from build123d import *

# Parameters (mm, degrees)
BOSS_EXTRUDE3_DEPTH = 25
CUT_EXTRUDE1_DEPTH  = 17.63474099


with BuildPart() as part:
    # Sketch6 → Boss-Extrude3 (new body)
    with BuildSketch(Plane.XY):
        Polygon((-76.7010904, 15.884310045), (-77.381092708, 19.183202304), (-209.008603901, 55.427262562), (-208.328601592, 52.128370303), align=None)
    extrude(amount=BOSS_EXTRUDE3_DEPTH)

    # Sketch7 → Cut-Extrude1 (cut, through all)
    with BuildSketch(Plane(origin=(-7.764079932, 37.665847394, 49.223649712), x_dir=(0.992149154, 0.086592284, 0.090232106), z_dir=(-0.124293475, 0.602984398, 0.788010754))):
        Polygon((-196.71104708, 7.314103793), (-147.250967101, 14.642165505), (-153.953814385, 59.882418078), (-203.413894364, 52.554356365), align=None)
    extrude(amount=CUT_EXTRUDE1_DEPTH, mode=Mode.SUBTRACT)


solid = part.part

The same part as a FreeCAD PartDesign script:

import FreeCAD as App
import Part
import Sketcher
from FreeCAD import Vector


def add_polygon(sketch, points):
    """Adds a closed chain of lines whose ends are joined by coincident constraints."""
    first, n = sketch.GeometryCount, len(points)
    for a, b in zip(points, points[1:] + points[:1]):
        sketch.addGeometry(Part.LineSegment(App.Vector(*a, 0), App.Vector(*b, 0)), False)
    for i in range(n):
        sketch.addConstraint(Sketcher.Constraint("Coincident", first + i, 2, first + (i + 1) % n, 1))

doc = App.newDocument("Part")
body = doc.addObject("PartDesign::Body", "Body")

# Sketch on XY plane
sketch1 = body.newObject("Sketcher::SketchObject", "Sketch")
sketch1.AttachmentSupport = (doc.getObject("XY_Plane"), [""])
sketch1.MapMode = "FlatFace"
add_polygon(sketch1, [(-76.70109, 15.88431), (-77.381093, 19.183202), (-209.008604, 55.427263), (-208.328602, 52.12837)])  # lines 0-3
sketch1.addConstraint([
    Sketcher.Constraint("Parallel", 0, 2),
    Sketcher.Constraint("Parallel", 1, 3),
    Sketcher.Constraint("DistanceX", 2, 2, -1, 1, 208.328602),
    Sketcher.Constraint("Distance", 1, 136.526311),
    Sketcher.Constraint("DistanceY", -1, 1, 2, 2, 52.12837),
    Sketcher.Constraint("DistanceX", 3, 2, -1, 1, 76.70109),
    Sketcher.Constraint("DistanceX", 2, 2, 0, 2, 130.947509),
    Sketcher.Constraint("Distance", 0, 3.368248),
])
pad1 = body.newObject("PartDesign::Pad", "Pad")
pad1.Profile = sketch1
pad1.Length = 25

# Sketch on an angled plane
sketch2 = body.newObject("Sketcher::SketchObject", "Sketch001")
sketch2.Placement = App.Placement(Vector(-7.76408, 37.665847, 49.22365), App.Rotation(Vector(0.992149154, 0.086592284, 0.090232106), Vector(-0.013827099, 0.793039465, -0.609013316), Vector(-0.124293475, 0.602984398, 0.788010754), "ZXY"))
add_polygon(sketch2, [(-196.711047, 7.314104), (-147.250967, 14.642166), (-153.953814, 59.882418), (-203.413894, 52.554356)])  # lines 0-3
sketch2.addConstraint([
    Sketcher.Constraint("Perpendicular", 0, 1),
    Sketcher.Constraint("Perpendicular", 1, 2),
    Sketcher.Constraint("Perpendicular", 2, 3),
    Sketcher.Constraint("Distance", 0, 50.0),
    Sketcher.Constraint("DistanceY", -1, 1, 1, 2, 59.882418),
    Sketcher.Constraint("DistanceX", 2, 2, 1, 2, 49.46008),
    Sketcher.Constraint("DistanceY", 0, 2, 2, 2, 37.912191),
    Sketcher.Constraint("DistanceX", 0, 2, -1, 1, 147.250967),
])
pocket1 = body.newObject("PartDesign::Pocket", "Pocket")
pocket1.Profile = sketch2
pocket1.Type = "ThroughAll"
pocket1.Reversed = True

doc.recompute()
